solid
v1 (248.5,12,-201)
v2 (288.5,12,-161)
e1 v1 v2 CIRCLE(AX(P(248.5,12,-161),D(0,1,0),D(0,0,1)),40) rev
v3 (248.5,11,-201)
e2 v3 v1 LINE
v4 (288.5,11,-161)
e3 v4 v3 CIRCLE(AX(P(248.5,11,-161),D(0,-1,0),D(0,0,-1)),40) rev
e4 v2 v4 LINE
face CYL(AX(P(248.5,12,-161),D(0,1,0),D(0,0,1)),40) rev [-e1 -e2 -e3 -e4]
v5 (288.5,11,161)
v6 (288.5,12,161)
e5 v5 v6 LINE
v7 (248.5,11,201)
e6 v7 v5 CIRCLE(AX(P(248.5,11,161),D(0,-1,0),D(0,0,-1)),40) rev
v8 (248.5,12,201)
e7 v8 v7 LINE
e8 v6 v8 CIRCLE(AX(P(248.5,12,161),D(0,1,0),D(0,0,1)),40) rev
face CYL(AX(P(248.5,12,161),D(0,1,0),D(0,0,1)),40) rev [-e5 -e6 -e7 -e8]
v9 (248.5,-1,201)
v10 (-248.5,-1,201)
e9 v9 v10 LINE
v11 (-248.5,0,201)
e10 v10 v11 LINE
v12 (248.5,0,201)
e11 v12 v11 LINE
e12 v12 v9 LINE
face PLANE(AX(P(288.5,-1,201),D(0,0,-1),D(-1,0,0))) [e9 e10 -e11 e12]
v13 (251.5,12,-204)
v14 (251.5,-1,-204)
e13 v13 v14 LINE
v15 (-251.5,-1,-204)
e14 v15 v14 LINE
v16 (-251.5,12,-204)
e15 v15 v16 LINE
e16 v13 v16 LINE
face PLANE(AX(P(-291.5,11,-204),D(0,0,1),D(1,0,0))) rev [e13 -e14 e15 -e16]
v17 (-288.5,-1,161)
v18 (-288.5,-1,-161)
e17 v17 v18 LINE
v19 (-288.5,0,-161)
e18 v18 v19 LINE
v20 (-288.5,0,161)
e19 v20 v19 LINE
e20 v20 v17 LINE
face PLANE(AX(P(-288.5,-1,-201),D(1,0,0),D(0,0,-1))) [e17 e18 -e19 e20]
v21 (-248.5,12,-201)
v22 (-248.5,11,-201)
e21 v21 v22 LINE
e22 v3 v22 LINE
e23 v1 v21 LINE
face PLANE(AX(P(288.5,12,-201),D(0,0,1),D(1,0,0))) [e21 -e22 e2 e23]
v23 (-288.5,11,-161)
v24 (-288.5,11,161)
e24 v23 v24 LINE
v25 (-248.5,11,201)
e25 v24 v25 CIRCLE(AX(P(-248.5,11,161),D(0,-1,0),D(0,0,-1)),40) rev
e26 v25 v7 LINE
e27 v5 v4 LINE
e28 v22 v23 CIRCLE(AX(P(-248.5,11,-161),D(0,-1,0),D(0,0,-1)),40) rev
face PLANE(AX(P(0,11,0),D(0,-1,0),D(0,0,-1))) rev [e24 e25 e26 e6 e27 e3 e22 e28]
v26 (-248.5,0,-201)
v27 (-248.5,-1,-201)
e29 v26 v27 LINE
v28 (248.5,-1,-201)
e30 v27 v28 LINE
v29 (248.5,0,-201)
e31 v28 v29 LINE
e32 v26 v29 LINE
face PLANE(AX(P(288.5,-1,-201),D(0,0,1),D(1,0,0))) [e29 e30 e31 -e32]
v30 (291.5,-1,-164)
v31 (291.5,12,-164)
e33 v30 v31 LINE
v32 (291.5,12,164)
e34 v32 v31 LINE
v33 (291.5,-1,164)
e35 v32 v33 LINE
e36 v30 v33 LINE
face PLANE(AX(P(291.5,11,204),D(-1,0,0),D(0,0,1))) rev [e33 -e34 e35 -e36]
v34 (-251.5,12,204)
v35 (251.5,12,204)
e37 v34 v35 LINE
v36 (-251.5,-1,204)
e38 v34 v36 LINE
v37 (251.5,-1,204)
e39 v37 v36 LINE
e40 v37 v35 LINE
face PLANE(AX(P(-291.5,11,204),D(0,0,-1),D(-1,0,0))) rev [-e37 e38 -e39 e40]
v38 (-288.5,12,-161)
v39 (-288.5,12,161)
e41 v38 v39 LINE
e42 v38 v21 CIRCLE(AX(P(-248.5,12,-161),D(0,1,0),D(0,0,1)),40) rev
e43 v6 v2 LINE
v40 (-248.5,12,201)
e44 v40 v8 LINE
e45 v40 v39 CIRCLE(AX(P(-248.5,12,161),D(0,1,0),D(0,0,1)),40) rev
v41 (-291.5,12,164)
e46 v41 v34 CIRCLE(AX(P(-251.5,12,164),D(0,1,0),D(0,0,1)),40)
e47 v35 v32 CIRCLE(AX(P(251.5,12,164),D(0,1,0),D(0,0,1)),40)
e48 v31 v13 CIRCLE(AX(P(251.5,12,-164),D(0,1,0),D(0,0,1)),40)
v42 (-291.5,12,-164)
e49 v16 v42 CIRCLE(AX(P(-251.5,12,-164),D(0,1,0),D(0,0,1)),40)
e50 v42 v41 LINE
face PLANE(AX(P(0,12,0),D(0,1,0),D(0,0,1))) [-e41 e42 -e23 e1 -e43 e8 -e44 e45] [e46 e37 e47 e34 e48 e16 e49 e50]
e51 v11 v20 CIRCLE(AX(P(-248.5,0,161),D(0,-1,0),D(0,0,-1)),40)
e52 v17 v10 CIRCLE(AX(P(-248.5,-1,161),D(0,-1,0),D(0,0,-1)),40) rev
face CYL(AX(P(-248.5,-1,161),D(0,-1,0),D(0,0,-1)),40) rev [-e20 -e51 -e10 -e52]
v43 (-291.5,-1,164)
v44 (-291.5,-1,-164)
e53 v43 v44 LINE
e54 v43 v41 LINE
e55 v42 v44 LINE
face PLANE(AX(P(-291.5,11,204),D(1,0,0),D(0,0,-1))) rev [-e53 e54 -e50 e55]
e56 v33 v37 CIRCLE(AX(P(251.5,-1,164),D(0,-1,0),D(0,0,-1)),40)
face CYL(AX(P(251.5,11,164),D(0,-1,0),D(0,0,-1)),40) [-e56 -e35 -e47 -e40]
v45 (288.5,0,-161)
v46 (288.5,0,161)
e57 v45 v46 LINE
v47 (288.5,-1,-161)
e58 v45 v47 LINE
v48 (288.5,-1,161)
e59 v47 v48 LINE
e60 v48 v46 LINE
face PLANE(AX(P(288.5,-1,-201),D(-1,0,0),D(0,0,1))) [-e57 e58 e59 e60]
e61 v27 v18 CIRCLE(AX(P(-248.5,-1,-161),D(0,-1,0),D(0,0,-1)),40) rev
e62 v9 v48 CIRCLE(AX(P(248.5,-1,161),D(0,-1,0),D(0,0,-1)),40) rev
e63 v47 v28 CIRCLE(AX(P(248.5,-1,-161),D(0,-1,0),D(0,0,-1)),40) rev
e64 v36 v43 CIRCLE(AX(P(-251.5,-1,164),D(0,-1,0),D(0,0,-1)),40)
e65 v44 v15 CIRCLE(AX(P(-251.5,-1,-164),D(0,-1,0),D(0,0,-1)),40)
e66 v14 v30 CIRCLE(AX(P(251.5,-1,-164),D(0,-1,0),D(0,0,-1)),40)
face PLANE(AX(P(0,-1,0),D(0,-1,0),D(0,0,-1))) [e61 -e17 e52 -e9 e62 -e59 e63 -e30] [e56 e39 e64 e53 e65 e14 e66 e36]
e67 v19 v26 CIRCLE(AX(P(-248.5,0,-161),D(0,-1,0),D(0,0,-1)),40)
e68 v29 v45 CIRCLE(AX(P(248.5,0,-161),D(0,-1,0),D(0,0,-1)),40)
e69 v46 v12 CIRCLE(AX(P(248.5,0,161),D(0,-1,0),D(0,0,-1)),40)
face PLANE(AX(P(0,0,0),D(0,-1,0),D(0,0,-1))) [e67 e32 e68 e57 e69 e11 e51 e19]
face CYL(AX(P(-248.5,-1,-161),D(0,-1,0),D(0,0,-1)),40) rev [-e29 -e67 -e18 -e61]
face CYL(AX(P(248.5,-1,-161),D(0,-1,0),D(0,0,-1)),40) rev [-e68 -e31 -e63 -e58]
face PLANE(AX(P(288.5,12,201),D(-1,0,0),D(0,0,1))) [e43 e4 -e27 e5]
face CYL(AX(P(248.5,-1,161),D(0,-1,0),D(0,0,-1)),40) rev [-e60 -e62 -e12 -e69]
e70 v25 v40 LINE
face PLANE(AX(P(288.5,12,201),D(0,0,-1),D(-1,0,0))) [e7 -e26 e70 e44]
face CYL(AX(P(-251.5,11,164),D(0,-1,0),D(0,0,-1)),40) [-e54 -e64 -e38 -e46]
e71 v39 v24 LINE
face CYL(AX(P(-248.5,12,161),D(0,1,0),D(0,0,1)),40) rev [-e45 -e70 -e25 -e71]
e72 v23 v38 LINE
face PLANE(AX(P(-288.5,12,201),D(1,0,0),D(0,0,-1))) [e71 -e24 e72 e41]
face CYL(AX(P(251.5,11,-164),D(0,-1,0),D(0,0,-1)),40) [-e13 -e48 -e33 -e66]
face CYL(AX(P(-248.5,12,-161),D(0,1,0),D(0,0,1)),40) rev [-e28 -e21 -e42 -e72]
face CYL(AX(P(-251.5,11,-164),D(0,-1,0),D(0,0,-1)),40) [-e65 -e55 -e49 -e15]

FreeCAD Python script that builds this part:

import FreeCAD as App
import Part
import Sketcher
from FreeCAD import Vector
Q = App.Units.Quantity


def edges_at(feature, points):
    """Names of the edges that pass closest to the given points."""
    edges = feature.Shape.Edges
    near = lambda p: min(range(len(edges)), key=lambda i: edges[i].distToShape(Part.Vertex(*p))[0])
    return sorted({f"Edge{near(p) + 1}" for p in points})


def add_polygon(sketch, points):
    """Adds a closed chain of lines whose ends are joined by coincident constraints."""
    first, n = sketch.GeometryCount, len(points)
    for a, b in zip(points, points[1:] + points[:1]):
        sketch.addGeometry(Part.LineSegment(App.Vector(*a, 0), App.Vector(*b, 0)), False)
    for i in range(n):
        sketch.addConstraint(Sketcher.Constraint("Coincident", first + i, 2, first + (i + 1) % n, 1))

doc = App.newDocument("Part")
body = doc.addObject("PartDesign::Body", "Body")

sketch1 = doc.addObject("Sketcher::SketchObject", "Sketch")
body.addObject(sketch1)
sketch1.AttachmentSupport = (doc.XZ_Plane, [""])
sketch1.MapMode = "FlatFace"
add_polygon(sketch1, [(-292, -204), (-292, 204), (292, 204), (292, -204)])
sketch1.addConstraint([
    Sketcher.Constraint("Vertical", 0),
    Sketcher.Constraint("Horizontal", 1),
    Sketcher.Constraint("Vertical", 2),
    Sketcher.Constraint("Horizontal", 3),
    Sketcher.Constraint("Symmetric", 0, 2, 2, 2, -1, 1),
    Sketcher.Constraint("DistanceX", 1, 1, 1, 2, Q("583 mm")),
    Sketcher.Constraint("DistanceY", 0, 1, 0, 2, Q("408 mm")),
])
pad1 = doc.addObject("PartDesign::Pad", "Pad")
body.addObject(pad1)
pad1.Profile = sketch1
pad1.Length = 11
pad1.Reversed = True

sketch2 = doc.addObject("Sketcher::SketchObject", "Sketch001")
body.addObject(sketch2)
sketch2.AttachmentSupport = (doc.XZ_Plane, [""])
sketch2.MapMode = "FlatFace"
sketch2.AttachmentOffset = App.Placement(Vector(0, 0, -11), App.Rotation())
add_polygon(sketch2, [(-292, -204), (-292, 204), (292, 204), (292, -204)])
add_polygon(sketch2, [(288, 201), (-288, 201), (-288, -201), (288, -201)])
sketch2.addConstraint([
    Sketcher.Constraint("Vertical", 0),
    Sketcher.Constraint("Horizontal", 1),
    Sketcher.Constraint("Vertical", 2),
    Sketcher.Constraint("Horizontal", 3),
    Sketcher.Constraint("Horizontal", 4),
    Sketcher.Constraint("Vertical", 5),
    Sketcher.Constraint("Horizontal", 6),
    Sketcher.Constraint("Vertical", 7),
    Sketcher.Constraint("Symmetric", 0, 2, 2, 2, -1, 1),
    Sketcher.Constraint("Symmetric", 4, 2, 6, 2, -1, 1),
    Sketcher.Constraint("DistanceX", 1, 1, 1, 2, Q("583 mm")),
    Sketcher.Constraint("DistanceX", 4, 2, 4, 1, Q("577 mm")),
    Sketcher.Constraint("DistanceY", 0, 1, 0, 2, Q("408 mm")),
    Sketcher.Constraint("DistanceY", 5, 2, 5, 1, Q("402 mm")),
])
pad2 = doc.addObject("PartDesign::Pad", "Pad001")
body.addObject(pad2)
pad2.Profile = sketch2
pad2.Length = 1
pad2.Reversed = True

sketch3 = doc.addObject("Sketcher::SketchObject", "Sketch002")
body.addObject(sketch3)
sketch3.AttachmentSupport = (doc.XZ_Plane, [""])
sketch3.MapMode = "FlatFace"
add_polygon(sketch3, [(-292, 204), (-292, -204), (292, -204), (292, 204)])
add_polygon(sketch3, [(288, -201), (-288, -201), (-288, 201), (288, 201)])
sketch3.addConstraint([
    Sketcher.Constraint("Vertical", 0),
    Sketcher.Constraint("Horizontal", 1),
    Sketcher.Constraint("Vertical", 2),
    Sketcher.Constraint("Horizontal", 3),
    Sketcher.Constraint("Horizontal", 4),
    Sketcher.Constraint("Vertical", 5),
    Sketcher.Constraint("Horizontal", 6),
    Sketcher.Constraint("Vertical", 7),
    Sketcher.Constraint("Symmetric", 0, 2, 2, 2, -1, 1),
    Sketcher.Constraint("Symmetric", 4, 2, 6, 2, -1, 1),
    Sketcher.Constraint("DistanceX", 1, 1, 1, 2, Q("583 mm")),
    Sketcher.Constraint("DistanceX", 4, 2, 4, 1, Q("577 mm")),
    Sketcher.Constraint("DistanceY", 0, 2, 0, 1, Q("408 mm")),
    Sketcher.Constraint("DistanceY", 5, 1, 5, 2, Q("402 mm")),
])
pad3 = doc.addObject("PartDesign::Pad", "Pad002")
body.addObject(pad3)
pad3.Profile = sketch3
pad3.Length = 1
doc.recompute()

fillet = doc.addObject("PartDesign::Fillet", "Fillet")
body.addObject(fillet)
fillet.Base = (pad3, edges_at(pad3, [
    (-288.5, 11.5, 201),
    (288.5, 11.5, 201),
    (288.5, 11.5, -201),
    (-288.5, 11.5, -201),
    (-288.5, -0.5, -201),
    (288.5, -0.5, -201),
    (288.5, -0.5, 201),
    (-288.5, -0.5, 201),
    (291.5, 5.5, 204),
    (-291.5, 5.5, 204),
    (-291.5, 5.5, -204),
    (291.5, 5.5, -204),
]))
fillet.Radius = 40

doc.recompute()
